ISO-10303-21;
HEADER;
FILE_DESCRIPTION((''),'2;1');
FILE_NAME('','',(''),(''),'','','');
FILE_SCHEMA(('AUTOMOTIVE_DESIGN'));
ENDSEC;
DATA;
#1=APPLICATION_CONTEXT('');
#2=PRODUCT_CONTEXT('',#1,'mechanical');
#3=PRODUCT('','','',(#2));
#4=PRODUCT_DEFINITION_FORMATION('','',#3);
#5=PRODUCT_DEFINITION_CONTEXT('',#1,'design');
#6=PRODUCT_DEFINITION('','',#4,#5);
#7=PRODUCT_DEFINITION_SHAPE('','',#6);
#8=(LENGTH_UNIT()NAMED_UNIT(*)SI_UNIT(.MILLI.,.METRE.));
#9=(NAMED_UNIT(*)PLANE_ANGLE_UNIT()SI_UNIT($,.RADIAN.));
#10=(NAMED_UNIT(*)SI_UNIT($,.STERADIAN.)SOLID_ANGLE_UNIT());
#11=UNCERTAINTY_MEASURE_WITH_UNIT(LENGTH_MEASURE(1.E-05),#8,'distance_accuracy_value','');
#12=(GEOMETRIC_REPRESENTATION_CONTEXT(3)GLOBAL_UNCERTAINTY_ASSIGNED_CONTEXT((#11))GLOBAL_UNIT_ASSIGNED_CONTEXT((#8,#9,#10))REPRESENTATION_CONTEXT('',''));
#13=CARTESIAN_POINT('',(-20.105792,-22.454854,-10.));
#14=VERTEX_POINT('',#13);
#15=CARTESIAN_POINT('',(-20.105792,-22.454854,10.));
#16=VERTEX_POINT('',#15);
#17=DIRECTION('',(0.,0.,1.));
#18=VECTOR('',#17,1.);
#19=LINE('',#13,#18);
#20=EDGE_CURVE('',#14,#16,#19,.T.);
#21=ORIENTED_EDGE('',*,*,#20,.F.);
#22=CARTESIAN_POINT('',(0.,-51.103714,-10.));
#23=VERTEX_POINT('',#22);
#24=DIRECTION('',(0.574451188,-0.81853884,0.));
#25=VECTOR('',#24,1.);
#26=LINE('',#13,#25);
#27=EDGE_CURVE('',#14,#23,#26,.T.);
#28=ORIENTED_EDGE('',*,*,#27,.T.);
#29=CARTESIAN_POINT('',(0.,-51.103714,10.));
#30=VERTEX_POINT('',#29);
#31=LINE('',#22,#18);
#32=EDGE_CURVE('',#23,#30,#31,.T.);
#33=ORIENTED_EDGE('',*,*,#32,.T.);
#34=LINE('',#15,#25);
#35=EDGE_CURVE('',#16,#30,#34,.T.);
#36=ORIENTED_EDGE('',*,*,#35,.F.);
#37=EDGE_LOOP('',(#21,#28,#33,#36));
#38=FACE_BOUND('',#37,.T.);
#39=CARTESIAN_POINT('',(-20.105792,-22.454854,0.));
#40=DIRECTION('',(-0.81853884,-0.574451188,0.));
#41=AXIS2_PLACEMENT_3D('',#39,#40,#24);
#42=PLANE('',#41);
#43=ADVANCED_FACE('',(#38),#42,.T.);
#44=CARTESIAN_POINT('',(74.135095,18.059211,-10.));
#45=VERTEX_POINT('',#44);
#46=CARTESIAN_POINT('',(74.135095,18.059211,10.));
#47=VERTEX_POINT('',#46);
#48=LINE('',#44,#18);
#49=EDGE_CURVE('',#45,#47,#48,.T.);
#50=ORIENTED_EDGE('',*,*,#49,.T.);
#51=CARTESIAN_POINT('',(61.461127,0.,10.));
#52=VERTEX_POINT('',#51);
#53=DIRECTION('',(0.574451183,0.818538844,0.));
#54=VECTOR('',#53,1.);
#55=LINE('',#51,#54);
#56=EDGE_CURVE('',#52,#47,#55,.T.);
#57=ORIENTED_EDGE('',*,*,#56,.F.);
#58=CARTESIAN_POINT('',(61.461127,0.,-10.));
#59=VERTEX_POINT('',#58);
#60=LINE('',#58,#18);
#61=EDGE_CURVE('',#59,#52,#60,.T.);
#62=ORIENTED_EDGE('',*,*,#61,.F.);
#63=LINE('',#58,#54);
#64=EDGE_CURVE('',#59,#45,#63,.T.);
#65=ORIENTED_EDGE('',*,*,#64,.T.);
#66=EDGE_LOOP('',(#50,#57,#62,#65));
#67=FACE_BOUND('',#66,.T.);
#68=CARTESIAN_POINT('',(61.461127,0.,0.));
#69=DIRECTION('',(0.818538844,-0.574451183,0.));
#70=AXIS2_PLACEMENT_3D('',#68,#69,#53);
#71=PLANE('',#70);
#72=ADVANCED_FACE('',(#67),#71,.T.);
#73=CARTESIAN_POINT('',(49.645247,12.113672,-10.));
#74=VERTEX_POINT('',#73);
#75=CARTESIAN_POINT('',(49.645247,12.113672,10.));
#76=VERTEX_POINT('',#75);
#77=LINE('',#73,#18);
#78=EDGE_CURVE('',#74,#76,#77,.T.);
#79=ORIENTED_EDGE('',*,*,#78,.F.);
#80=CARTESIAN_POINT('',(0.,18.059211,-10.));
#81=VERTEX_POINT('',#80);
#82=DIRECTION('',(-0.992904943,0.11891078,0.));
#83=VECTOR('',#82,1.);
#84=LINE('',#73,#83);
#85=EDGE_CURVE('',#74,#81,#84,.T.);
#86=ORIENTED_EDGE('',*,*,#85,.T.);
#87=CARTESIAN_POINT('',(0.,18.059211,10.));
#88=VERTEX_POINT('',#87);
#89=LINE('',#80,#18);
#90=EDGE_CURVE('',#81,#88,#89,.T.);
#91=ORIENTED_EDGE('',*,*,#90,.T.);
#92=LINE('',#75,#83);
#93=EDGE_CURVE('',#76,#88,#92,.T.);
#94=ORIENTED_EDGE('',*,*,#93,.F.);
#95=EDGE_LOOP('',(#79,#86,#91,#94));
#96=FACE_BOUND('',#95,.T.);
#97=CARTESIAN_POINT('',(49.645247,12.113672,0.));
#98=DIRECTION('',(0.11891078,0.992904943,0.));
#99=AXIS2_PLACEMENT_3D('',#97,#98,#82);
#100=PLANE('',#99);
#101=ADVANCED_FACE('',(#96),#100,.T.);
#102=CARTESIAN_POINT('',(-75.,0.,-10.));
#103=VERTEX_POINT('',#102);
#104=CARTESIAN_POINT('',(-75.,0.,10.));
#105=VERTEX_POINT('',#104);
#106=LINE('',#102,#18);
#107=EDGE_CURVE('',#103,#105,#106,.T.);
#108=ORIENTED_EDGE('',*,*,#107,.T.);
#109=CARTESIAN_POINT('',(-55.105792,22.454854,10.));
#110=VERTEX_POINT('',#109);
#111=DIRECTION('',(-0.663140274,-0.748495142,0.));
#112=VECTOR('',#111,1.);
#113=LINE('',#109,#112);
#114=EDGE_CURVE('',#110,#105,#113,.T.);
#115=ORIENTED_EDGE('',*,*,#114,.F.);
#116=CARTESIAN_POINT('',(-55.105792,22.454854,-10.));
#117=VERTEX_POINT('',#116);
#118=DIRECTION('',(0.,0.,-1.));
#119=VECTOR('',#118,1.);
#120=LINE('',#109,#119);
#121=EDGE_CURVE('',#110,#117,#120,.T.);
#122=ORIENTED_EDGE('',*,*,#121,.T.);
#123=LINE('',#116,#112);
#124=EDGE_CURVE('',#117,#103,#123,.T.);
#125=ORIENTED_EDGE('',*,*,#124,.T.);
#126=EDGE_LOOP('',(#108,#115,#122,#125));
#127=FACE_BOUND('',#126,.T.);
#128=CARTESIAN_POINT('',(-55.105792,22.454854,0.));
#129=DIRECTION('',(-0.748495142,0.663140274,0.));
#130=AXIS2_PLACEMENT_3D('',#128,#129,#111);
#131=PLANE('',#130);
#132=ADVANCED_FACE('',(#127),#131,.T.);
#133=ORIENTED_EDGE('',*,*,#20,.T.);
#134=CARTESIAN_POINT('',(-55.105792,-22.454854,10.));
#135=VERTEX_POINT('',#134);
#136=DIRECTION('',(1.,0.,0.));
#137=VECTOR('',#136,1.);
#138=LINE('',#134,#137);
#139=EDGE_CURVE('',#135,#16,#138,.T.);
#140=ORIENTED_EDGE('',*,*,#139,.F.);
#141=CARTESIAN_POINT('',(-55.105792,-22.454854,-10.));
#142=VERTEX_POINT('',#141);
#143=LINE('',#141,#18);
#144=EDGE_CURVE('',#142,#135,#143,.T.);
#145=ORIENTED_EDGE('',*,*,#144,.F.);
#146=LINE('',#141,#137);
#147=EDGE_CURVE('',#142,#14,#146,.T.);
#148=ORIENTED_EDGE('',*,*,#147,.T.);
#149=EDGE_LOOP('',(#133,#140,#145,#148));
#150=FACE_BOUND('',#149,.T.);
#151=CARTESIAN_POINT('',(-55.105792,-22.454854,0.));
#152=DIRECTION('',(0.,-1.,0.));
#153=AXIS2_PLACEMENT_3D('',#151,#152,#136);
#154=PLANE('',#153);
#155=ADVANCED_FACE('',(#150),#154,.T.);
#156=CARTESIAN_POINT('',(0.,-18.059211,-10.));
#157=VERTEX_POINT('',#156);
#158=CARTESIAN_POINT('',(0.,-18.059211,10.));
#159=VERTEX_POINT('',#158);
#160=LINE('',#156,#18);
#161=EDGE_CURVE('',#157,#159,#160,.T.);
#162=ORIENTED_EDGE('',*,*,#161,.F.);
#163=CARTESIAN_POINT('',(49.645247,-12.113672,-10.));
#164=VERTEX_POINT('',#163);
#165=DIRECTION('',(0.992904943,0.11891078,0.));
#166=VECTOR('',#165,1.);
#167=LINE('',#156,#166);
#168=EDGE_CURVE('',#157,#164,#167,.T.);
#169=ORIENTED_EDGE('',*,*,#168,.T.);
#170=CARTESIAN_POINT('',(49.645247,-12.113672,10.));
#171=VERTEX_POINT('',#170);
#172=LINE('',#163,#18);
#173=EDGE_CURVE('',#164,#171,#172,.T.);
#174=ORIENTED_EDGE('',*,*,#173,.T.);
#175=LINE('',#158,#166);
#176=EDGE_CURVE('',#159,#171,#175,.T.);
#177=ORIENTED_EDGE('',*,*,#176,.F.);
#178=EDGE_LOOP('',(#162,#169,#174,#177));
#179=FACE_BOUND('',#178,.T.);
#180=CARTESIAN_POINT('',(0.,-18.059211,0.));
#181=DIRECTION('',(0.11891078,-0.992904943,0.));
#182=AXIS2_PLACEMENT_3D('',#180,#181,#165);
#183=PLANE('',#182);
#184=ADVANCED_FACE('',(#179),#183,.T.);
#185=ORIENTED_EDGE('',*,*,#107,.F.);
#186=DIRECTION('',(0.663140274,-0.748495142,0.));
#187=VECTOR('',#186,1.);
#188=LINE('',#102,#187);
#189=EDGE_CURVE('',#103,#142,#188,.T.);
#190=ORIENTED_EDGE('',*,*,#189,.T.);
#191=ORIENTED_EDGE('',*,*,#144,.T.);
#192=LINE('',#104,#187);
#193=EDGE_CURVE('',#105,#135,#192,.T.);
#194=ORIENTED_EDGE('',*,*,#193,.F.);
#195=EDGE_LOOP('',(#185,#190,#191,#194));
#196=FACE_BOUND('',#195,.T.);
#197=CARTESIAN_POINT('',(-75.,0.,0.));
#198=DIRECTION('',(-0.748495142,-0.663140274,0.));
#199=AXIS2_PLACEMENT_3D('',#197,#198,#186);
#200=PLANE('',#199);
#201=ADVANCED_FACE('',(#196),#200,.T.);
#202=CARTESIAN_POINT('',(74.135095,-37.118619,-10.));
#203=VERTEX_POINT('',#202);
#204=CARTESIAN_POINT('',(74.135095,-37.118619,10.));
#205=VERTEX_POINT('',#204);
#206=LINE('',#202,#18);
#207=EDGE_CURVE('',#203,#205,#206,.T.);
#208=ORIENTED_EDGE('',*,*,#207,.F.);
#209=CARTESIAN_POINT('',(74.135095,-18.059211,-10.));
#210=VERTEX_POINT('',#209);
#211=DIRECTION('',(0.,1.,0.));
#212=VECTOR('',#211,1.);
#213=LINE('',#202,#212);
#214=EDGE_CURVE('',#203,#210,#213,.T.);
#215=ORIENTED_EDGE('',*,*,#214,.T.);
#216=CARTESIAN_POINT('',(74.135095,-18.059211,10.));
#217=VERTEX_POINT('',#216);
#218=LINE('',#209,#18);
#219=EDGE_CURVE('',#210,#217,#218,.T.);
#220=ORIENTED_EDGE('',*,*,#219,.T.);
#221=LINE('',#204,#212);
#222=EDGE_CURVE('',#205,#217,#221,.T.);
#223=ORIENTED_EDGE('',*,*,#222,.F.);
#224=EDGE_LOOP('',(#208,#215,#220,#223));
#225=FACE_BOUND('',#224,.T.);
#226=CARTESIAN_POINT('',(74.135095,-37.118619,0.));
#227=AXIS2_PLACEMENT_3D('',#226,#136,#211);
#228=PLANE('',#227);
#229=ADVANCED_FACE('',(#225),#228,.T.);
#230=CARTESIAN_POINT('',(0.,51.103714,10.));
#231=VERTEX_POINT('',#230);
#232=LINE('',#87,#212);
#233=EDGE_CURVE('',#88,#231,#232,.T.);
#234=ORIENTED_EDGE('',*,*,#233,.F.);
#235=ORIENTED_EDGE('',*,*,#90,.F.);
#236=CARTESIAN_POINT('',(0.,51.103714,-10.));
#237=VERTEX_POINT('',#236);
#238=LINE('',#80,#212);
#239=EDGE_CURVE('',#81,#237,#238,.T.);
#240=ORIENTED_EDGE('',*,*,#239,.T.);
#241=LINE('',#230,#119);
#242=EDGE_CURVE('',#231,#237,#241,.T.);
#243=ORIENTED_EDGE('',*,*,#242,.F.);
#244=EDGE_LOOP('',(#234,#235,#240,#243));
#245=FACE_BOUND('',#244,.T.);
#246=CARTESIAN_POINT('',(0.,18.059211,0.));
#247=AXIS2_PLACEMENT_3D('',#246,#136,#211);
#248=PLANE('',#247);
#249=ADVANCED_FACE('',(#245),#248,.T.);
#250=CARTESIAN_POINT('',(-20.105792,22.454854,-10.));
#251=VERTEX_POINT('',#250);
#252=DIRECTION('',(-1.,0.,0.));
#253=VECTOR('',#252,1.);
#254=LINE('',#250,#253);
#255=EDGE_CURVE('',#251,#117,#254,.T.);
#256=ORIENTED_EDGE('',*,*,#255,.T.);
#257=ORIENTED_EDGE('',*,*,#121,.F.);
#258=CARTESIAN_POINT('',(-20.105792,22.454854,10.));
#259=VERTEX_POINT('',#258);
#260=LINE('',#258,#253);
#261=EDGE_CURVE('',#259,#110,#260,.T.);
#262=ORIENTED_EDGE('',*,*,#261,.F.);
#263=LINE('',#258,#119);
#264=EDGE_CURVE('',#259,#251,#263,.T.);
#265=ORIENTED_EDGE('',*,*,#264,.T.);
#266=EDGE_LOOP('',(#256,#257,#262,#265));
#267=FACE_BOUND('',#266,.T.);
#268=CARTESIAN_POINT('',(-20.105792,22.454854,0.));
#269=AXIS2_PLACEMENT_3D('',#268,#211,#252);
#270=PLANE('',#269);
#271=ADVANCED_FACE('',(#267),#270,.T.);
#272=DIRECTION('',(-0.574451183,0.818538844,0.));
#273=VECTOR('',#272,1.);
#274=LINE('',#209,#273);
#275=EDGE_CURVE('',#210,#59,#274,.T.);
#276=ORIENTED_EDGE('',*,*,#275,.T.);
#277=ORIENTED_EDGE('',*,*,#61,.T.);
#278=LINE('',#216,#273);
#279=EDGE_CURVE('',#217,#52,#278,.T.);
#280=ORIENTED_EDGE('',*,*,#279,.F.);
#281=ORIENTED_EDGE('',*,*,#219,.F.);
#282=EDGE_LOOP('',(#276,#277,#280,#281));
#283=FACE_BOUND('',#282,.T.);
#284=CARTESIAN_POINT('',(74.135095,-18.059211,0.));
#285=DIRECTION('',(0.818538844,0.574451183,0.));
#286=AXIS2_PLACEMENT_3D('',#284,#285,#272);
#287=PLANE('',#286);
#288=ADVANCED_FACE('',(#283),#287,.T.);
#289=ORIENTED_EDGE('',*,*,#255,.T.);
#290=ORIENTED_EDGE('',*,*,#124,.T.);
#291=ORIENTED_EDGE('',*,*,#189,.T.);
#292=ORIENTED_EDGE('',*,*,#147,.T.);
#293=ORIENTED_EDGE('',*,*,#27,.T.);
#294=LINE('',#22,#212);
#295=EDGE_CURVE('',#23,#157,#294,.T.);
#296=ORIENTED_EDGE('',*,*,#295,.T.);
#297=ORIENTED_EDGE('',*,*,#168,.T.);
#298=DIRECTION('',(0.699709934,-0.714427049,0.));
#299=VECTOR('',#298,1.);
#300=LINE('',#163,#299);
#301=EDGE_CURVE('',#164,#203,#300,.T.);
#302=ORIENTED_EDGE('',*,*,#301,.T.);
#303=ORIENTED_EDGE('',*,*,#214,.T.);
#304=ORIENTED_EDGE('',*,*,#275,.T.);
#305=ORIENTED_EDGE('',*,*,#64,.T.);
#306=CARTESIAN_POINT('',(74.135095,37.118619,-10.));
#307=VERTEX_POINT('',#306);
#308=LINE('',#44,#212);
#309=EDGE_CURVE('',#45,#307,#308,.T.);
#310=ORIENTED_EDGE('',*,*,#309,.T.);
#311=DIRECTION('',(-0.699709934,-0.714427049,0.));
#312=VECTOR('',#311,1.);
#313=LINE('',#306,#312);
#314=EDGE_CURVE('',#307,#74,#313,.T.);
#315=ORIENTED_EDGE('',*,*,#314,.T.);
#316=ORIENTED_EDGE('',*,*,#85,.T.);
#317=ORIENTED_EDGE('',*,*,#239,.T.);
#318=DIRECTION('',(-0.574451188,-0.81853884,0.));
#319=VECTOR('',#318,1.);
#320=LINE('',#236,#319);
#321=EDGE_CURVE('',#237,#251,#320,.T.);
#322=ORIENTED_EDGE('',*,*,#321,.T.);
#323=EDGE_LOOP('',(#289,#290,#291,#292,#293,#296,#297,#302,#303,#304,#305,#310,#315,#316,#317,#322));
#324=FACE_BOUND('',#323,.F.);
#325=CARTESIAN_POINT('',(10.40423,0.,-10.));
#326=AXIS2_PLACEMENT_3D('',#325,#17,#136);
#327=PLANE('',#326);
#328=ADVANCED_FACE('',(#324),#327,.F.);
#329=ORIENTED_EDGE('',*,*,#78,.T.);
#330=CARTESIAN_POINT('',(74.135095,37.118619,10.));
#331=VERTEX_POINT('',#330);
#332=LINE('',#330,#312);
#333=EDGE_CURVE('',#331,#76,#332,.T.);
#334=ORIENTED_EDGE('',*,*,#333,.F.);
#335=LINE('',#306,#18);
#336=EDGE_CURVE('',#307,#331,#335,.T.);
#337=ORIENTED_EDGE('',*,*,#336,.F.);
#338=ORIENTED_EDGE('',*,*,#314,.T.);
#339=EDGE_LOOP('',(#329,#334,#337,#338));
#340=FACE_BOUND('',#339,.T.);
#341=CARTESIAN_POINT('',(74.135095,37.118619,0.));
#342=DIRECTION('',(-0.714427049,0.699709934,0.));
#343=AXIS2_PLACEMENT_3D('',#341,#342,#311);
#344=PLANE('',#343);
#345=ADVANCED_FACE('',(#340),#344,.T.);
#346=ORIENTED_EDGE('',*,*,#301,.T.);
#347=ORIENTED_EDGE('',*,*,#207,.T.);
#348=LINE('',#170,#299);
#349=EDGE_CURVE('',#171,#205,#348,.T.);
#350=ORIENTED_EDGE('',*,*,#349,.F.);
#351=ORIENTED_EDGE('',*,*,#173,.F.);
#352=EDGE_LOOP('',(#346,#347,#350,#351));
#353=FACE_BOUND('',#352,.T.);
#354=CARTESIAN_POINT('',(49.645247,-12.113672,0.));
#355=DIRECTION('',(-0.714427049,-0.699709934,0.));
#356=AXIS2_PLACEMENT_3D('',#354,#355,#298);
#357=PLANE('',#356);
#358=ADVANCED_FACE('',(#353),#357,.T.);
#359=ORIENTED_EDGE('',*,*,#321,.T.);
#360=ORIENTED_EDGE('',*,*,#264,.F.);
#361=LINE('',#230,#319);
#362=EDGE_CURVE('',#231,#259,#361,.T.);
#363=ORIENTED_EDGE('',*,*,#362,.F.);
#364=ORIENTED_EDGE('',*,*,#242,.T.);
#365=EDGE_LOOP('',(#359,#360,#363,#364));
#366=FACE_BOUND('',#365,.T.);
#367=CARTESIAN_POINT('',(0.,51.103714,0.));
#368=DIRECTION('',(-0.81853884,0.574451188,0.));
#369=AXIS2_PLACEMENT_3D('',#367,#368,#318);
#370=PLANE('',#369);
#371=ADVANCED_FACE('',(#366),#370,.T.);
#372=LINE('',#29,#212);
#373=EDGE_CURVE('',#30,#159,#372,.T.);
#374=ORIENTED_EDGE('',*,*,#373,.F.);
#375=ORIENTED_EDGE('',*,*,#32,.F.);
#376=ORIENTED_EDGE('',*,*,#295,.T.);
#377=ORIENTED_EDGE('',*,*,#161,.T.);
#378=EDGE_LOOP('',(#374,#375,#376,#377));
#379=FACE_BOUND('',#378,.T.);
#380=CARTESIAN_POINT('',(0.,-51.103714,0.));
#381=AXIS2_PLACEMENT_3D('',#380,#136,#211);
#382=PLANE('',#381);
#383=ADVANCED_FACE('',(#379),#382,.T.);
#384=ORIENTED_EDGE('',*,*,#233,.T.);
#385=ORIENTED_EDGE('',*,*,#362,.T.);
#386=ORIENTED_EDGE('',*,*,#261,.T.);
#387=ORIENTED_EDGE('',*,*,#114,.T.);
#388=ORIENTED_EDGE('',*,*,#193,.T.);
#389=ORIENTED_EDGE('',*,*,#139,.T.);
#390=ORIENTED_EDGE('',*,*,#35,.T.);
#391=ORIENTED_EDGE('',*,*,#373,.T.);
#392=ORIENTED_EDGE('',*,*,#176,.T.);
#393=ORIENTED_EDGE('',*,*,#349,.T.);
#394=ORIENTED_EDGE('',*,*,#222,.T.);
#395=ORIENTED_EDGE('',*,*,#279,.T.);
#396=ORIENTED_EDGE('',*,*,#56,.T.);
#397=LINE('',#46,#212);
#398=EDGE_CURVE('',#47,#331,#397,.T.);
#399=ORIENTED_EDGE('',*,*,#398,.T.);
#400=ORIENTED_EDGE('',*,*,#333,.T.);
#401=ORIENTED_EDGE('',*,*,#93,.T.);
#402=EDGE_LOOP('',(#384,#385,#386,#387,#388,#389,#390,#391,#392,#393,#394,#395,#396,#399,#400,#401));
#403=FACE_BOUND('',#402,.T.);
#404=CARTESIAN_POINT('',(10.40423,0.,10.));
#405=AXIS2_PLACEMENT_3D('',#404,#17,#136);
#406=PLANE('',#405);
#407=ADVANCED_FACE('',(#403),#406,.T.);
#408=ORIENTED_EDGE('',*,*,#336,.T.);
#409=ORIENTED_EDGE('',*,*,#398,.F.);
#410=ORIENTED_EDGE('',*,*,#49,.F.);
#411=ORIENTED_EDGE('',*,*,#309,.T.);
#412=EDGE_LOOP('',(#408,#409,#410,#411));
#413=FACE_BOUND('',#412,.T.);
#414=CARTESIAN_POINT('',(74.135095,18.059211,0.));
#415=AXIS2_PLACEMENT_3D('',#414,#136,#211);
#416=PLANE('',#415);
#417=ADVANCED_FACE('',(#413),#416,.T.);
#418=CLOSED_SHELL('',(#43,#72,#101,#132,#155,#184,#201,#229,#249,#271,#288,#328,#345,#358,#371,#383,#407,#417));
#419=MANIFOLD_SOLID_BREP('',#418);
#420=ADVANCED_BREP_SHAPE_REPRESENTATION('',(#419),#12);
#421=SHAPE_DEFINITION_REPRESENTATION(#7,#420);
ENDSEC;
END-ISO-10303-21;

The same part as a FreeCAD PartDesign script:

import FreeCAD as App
import Part
import Sketcher
from FreeCAD import Vector

doc = App.newDocument("Part")
body = doc.addObject("PartDesign::Body", "Body")

# Sketch on XY plane
sketch1 = doc.addObject("Sketcher::SketchObject", "Sketch")
body.addObject(sketch1)
sketch1.AttachmentSupport = (doc.XY_Plane, [""])
sketch1.MapMode = "FlatFace"
sketch1.addGeometry(Part.LineSegment(Vector(-55.105792, 22.454854, 0), Vector(-75, 0, 0)), False)
sketch1.addGeometry(Part.LineSegment(Vector(-75, 0, 0), Vector(-55.105792, -22.454854, 0)), False)
sketch1.addGeometry(Part.LineSegment(Vector(-55.105792, -22.454854, 0), Vector(-20.105792, -22.454854, 0)), False)
sketch1.addGeometry(Part.LineSegment(Vector(-20.105792, -22.454854, 0), Vector(0, -51.103714, 0)), False)
sketch1.addGeometry(Part.LineSegment(Vector(0, -51.103714, 0), Vector(0, -18.059211, 0)), False)
sketch1.addGeometry(Part.LineSegment(Vector(0, -18.059211, 0), Vector(49.645247, -12.113672, 0)), False)
sketch1.addGeometry(Part.LineSegment(Vector(49.645247, -12.113672, 0), Vector(74.135095, -37.118619, 0)), False)
sketch1.addGeometry(Part.LineSegment(Vector(74.135095, -37.118619, 0), Vector(74.135095, -18.059211, 0)), False)
sketch1.addGeometry(Part.LineSegment(Vector(74.135095, -18.059211, 0), Vector(61.461127, 0, 0)), False)
sketch1.addGeometry(Part.LineSegment(Vector(61.461127, 0, 0), Vector(74.135095, 18.059211, 0)), False)
sketch1.addGeometry(Part.LineSegment(Vector(74.135095, 18.059211, 0), Vector(74.135095, 37.118619, 0)), False)
sketch1.addGeometry(Part.LineSegment(Vector(74.135095, 37.118619, 0), Vector(49.645247, 12.113672, 0)), False)
sketch1.addGeometry(Part.LineSegment(Vector(49.645247, 12.113672, 0), Vector(0, 18.059211, 0)), False)
sketch1.addGeometry(Part.LineSegment(Vector(0, 18.059211, 0), Vector(0, 51.103714, 0)), False)
sketch1.addGeometry(Part.LineSegment(Vector(0, 51.103714, 0), Vector(-20.105792, 22.454854, 0)), False)
sketch1.addGeometry(Part.LineSegment(Vector(-20.105792, 22.454854, 0), Vector(-55.105792, 22.454854, 0)), False)
sketch1.addConstraint(Sketcher.Constraint("Coincident", 0, 2, 1, 1))
sketch1.addConstraint(Sketcher.Constraint("Coincident", 1, 2, 2, 1))
sketch1.addConstraint(Sketcher.Constraint("Coincident", 2, 2, 3, 1))
sketch1.addConstraint(Sketcher.Constraint("Coincident", 3, 2, 4, 1))
sketch1.addConstraint(Sketcher.Constraint("Coincident", 4, 2, 5, 1))
sketch1.addConstraint(Sketcher.Constraint("Coincident", 5, 2, 6, 1))
sketch1.addConstraint(Sketcher.Constraint("Coincident", 6, 2, 7, 1))
sketch1.addConstraint(Sketcher.Constraint("Coincident", 7, 2, 8, 1))
sketch1.addConstraint(Sketcher.Constraint("Coincident", 8, 2, 9, 1))
sketch1.addConstraint(Sketcher.Constraint("Coincident", 9, 2, 10, 1))
sketch1.addConstraint(Sketcher.Constraint("Coincident", 10, 2, 11, 1))
sketch1.addConstraint(Sketcher.Constraint("Coincident", 11, 2, 12, 1))
sketch1.addConstraint(Sketcher.Constraint("Coincident", 12, 2, 13, 1))
sketch1.addConstraint(Sketcher.Constraint("Coincident", 13, 2, 14, 1))
sketch1.addConstraint(Sketcher.Constraint("Coincident", 14, 2, 15, 1))
sketch1.addConstraint(Sketcher.Constraint("Coincident", 15, 2, 0, 1))
sketch1.addConstraint(Sketcher.Constraint("Horizontal", 2))
sketch1.addConstraint(Sketcher.Constraint("Vertical", 4))
sketch1.addConstraint(Sketcher.Constraint("Vertical", 7))
sketch1.addConstraint(Sketcher.Constraint("Vertical", 10))
sketch1.addConstraint(Sketcher.Constraint("Vertical", 13))
sketch1.addConstraint(Sketcher.Constraint("Horizontal", 15))
sketch1.addConstraint(Sketcher.Constraint("Symmetric", 4, 2, 12, 2, -1, 1))
sketch1.addConstraint(Sketcher.Constraint("Symmetric", 7, 2, 9, 2, -1))
sketch1.addConstraint(Sketcher.Constraint("Symmetric", 5, 2, 11, 2, -1))
sketch1.addConstraint(Sketcher.Constraint("Symmetric", 3, 2, 13, 2, -1))
sketch1.addConstraint(Sketcher.Constraint("Symmetric", 2, 2, 14, 2, -1))
sketch1.addConstraint(Sketcher.Constraint("PointOnObject", 0, 2, -1))
sketch1.addConstraint(Sketcher.Constraint("PointOnObject", 8, 2, -1))
sketch1.addConstraint(Sketcher.Constraint("Parallel", 3, 8))
sketch1.addConstraint(Sketcher.Constraint("Horizontal", 4, 2, 7, 2))
sketch1.addConstraint(Sketcher.Constraint("Vertical", 1, 2, 15, 2))
sketch1.addConstraint(Sketcher.Constraint("Equal", 7, 10))
sketch1.addConstraint(Sketcher.Constraint("Equal", 3, 6))
sketch1.addConstraint(Sketcher.Constraint("DistanceX", 2, 1, 2, 2, 35.0))
sketch1.addConstraint(Sketcher.Constraint("Distance", 0, 30.0))
sketch1.addConstraint(Sketcher.Constraint("Distance", 3, 35.000001))
sketch1.addConstraint(Sketcher.Constraint("Distance", 5, 50.0))
sketch1.addConstraint(Sketcher.Constraint("DistanceX", 0, 2, -1, 1, 75.0))
sketch1.addConstraint(Sketcher.Constraint("DistanceY", 7, 1, 7, 2, 19.059408))
sketch1.addConstraint(Sketcher.Constraint("Distance", 8, 22.062742))
sketch1.addConstraint(Sketcher.Constraint("DistanceY", 4, 1, 4, 2, 33.044503))
sketch1.addConstraint(Sketcher.Constraint("DistanceY", 5, 2, -1, 1, 12.113672))
pad1 = doc.addObject("PartDesign::Pad", "Pad")
body.addObject(pad1)
pad1.Profile = sketch1
pad1.Length = 20
pad1.Midplane = True

doc.recompute()
